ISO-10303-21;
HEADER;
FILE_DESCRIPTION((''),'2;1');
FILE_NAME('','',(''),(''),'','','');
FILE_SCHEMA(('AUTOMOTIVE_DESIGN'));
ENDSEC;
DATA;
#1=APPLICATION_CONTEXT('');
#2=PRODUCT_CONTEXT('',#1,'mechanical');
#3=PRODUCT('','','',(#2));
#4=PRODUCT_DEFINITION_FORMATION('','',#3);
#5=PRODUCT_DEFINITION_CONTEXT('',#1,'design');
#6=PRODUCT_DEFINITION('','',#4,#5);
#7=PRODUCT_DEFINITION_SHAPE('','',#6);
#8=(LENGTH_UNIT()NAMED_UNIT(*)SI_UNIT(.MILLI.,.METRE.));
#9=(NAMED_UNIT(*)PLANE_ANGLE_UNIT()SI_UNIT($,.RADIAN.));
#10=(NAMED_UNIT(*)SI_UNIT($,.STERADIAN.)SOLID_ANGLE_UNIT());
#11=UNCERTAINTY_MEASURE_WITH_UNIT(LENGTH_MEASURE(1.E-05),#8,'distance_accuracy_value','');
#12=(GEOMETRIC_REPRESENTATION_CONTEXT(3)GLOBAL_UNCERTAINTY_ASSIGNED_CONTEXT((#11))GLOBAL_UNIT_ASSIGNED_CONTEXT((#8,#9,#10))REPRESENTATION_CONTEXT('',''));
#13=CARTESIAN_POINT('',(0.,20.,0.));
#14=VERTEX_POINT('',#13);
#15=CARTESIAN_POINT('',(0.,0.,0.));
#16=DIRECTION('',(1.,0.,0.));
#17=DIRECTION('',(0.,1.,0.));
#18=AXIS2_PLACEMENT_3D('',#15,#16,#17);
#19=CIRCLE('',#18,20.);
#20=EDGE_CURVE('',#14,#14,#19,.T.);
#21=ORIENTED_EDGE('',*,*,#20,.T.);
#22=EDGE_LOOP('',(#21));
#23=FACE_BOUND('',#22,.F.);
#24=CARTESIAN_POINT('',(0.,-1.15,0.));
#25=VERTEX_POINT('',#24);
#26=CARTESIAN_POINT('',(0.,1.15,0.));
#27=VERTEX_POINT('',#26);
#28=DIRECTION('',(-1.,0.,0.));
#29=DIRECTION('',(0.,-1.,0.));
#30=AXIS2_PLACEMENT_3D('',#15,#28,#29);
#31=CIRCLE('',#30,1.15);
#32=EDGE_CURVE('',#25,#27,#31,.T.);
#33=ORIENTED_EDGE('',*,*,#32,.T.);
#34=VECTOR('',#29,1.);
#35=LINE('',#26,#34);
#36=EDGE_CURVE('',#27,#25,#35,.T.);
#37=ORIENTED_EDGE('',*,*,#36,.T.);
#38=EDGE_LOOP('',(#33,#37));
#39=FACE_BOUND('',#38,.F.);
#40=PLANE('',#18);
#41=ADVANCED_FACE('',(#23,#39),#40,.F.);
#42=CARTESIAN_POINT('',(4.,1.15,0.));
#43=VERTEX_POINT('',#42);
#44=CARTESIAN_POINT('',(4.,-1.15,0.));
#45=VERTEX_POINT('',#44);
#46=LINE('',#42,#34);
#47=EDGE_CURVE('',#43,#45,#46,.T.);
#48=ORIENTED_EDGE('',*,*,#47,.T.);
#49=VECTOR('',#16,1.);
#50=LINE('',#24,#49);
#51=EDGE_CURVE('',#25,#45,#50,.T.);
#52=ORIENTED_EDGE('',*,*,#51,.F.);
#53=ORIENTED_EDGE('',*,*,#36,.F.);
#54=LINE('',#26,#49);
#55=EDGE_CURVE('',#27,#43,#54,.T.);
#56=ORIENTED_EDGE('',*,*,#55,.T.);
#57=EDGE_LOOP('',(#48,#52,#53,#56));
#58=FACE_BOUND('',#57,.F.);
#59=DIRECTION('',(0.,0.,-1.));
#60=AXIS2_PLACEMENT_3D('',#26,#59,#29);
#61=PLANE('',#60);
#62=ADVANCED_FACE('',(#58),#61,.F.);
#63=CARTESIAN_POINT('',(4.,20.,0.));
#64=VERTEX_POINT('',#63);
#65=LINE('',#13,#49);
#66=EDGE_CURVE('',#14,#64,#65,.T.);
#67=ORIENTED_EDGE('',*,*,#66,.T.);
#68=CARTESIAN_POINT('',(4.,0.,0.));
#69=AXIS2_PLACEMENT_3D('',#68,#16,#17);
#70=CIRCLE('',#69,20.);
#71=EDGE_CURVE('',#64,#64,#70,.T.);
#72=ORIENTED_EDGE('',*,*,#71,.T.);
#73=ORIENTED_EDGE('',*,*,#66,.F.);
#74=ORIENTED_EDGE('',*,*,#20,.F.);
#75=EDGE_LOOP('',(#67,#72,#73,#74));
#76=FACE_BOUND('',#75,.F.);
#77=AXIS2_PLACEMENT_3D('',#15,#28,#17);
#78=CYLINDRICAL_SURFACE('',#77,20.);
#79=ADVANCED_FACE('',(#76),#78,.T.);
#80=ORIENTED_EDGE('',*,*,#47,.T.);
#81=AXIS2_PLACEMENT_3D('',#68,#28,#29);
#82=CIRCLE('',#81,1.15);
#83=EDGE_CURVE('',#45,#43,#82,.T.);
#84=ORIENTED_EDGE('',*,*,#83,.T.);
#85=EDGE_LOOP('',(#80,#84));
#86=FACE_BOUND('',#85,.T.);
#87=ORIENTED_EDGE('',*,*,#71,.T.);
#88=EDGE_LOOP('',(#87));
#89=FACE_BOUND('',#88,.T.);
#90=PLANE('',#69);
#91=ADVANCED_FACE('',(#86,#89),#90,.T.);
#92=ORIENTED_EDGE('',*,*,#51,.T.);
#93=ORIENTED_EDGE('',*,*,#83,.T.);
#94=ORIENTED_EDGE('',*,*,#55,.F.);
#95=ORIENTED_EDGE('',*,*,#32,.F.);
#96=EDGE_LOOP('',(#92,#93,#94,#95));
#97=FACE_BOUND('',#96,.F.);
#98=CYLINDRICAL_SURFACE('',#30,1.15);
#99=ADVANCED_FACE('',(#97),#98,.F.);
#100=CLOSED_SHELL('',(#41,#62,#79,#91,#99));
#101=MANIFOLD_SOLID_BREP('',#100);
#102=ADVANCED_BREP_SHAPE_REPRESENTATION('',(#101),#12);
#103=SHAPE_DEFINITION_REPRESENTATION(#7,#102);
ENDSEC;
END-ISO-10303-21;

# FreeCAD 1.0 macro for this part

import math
import FreeCAD as App
import Part
import Sketcher
from FreeCAD import Vector

doc = App.newDocument("Part")
body = doc.addObject("PartDesign::Body", "Body")

# Sketch on YZ plane
sketch1 = body.newObject("Sketcher::SketchObject", "Sketch")
sketch1.AttachmentSupport = (doc.getObject("YZ_Plane"), [""])
sketch1.MapMode = "FlatFace"
sketch1.addGeometry(Part.Circle(Vector(0, 0, 0), Vector(0, 0, 1), 20), False)
sketch1.addGeometry(Part.LineSegment(Vector(1.1, 0, 0), Vector(-1.1, 0, 0)), False)
sketch1.addGeometry(Part.ArcOfCircle(Part.Circle(Vector(0, 0, 0), Vector(0, 0, 1), 1.1), math.radians(0), math.radians(180)), False)
sketch1.addConstraint(Sketcher.Constraint("Coincident", 1, 1, 2, 1))
sketch1.addConstraint(Sketcher.Constraint("Coincident", 2, 2, 1, 2))
sketch1.addConstraint(Sketcher.Constraint("Horizontal", 1))
sketch1.addConstraint(Sketcher.Constraint("Coincident", 0, 3, -1, 1))
sketch1.addConstraint(Sketcher.Constraint("Coincident", 2, 3, -1, 1))
sketch1.addConstraint(Sketcher.Constraint("PointOnObject", 1, 1, -1))
sketch1.addConstraint(Sketcher.Constraint("Diameter", 0, 40.0))
sketch1.addConstraint(Sketcher.Constraint("Radius", 2, 1.15))
pad1 = body.newObject("PartDesign::Pad", "Pad")
pad1.Profile = sketch1
pad1.Length = 4

doc.recompute()
